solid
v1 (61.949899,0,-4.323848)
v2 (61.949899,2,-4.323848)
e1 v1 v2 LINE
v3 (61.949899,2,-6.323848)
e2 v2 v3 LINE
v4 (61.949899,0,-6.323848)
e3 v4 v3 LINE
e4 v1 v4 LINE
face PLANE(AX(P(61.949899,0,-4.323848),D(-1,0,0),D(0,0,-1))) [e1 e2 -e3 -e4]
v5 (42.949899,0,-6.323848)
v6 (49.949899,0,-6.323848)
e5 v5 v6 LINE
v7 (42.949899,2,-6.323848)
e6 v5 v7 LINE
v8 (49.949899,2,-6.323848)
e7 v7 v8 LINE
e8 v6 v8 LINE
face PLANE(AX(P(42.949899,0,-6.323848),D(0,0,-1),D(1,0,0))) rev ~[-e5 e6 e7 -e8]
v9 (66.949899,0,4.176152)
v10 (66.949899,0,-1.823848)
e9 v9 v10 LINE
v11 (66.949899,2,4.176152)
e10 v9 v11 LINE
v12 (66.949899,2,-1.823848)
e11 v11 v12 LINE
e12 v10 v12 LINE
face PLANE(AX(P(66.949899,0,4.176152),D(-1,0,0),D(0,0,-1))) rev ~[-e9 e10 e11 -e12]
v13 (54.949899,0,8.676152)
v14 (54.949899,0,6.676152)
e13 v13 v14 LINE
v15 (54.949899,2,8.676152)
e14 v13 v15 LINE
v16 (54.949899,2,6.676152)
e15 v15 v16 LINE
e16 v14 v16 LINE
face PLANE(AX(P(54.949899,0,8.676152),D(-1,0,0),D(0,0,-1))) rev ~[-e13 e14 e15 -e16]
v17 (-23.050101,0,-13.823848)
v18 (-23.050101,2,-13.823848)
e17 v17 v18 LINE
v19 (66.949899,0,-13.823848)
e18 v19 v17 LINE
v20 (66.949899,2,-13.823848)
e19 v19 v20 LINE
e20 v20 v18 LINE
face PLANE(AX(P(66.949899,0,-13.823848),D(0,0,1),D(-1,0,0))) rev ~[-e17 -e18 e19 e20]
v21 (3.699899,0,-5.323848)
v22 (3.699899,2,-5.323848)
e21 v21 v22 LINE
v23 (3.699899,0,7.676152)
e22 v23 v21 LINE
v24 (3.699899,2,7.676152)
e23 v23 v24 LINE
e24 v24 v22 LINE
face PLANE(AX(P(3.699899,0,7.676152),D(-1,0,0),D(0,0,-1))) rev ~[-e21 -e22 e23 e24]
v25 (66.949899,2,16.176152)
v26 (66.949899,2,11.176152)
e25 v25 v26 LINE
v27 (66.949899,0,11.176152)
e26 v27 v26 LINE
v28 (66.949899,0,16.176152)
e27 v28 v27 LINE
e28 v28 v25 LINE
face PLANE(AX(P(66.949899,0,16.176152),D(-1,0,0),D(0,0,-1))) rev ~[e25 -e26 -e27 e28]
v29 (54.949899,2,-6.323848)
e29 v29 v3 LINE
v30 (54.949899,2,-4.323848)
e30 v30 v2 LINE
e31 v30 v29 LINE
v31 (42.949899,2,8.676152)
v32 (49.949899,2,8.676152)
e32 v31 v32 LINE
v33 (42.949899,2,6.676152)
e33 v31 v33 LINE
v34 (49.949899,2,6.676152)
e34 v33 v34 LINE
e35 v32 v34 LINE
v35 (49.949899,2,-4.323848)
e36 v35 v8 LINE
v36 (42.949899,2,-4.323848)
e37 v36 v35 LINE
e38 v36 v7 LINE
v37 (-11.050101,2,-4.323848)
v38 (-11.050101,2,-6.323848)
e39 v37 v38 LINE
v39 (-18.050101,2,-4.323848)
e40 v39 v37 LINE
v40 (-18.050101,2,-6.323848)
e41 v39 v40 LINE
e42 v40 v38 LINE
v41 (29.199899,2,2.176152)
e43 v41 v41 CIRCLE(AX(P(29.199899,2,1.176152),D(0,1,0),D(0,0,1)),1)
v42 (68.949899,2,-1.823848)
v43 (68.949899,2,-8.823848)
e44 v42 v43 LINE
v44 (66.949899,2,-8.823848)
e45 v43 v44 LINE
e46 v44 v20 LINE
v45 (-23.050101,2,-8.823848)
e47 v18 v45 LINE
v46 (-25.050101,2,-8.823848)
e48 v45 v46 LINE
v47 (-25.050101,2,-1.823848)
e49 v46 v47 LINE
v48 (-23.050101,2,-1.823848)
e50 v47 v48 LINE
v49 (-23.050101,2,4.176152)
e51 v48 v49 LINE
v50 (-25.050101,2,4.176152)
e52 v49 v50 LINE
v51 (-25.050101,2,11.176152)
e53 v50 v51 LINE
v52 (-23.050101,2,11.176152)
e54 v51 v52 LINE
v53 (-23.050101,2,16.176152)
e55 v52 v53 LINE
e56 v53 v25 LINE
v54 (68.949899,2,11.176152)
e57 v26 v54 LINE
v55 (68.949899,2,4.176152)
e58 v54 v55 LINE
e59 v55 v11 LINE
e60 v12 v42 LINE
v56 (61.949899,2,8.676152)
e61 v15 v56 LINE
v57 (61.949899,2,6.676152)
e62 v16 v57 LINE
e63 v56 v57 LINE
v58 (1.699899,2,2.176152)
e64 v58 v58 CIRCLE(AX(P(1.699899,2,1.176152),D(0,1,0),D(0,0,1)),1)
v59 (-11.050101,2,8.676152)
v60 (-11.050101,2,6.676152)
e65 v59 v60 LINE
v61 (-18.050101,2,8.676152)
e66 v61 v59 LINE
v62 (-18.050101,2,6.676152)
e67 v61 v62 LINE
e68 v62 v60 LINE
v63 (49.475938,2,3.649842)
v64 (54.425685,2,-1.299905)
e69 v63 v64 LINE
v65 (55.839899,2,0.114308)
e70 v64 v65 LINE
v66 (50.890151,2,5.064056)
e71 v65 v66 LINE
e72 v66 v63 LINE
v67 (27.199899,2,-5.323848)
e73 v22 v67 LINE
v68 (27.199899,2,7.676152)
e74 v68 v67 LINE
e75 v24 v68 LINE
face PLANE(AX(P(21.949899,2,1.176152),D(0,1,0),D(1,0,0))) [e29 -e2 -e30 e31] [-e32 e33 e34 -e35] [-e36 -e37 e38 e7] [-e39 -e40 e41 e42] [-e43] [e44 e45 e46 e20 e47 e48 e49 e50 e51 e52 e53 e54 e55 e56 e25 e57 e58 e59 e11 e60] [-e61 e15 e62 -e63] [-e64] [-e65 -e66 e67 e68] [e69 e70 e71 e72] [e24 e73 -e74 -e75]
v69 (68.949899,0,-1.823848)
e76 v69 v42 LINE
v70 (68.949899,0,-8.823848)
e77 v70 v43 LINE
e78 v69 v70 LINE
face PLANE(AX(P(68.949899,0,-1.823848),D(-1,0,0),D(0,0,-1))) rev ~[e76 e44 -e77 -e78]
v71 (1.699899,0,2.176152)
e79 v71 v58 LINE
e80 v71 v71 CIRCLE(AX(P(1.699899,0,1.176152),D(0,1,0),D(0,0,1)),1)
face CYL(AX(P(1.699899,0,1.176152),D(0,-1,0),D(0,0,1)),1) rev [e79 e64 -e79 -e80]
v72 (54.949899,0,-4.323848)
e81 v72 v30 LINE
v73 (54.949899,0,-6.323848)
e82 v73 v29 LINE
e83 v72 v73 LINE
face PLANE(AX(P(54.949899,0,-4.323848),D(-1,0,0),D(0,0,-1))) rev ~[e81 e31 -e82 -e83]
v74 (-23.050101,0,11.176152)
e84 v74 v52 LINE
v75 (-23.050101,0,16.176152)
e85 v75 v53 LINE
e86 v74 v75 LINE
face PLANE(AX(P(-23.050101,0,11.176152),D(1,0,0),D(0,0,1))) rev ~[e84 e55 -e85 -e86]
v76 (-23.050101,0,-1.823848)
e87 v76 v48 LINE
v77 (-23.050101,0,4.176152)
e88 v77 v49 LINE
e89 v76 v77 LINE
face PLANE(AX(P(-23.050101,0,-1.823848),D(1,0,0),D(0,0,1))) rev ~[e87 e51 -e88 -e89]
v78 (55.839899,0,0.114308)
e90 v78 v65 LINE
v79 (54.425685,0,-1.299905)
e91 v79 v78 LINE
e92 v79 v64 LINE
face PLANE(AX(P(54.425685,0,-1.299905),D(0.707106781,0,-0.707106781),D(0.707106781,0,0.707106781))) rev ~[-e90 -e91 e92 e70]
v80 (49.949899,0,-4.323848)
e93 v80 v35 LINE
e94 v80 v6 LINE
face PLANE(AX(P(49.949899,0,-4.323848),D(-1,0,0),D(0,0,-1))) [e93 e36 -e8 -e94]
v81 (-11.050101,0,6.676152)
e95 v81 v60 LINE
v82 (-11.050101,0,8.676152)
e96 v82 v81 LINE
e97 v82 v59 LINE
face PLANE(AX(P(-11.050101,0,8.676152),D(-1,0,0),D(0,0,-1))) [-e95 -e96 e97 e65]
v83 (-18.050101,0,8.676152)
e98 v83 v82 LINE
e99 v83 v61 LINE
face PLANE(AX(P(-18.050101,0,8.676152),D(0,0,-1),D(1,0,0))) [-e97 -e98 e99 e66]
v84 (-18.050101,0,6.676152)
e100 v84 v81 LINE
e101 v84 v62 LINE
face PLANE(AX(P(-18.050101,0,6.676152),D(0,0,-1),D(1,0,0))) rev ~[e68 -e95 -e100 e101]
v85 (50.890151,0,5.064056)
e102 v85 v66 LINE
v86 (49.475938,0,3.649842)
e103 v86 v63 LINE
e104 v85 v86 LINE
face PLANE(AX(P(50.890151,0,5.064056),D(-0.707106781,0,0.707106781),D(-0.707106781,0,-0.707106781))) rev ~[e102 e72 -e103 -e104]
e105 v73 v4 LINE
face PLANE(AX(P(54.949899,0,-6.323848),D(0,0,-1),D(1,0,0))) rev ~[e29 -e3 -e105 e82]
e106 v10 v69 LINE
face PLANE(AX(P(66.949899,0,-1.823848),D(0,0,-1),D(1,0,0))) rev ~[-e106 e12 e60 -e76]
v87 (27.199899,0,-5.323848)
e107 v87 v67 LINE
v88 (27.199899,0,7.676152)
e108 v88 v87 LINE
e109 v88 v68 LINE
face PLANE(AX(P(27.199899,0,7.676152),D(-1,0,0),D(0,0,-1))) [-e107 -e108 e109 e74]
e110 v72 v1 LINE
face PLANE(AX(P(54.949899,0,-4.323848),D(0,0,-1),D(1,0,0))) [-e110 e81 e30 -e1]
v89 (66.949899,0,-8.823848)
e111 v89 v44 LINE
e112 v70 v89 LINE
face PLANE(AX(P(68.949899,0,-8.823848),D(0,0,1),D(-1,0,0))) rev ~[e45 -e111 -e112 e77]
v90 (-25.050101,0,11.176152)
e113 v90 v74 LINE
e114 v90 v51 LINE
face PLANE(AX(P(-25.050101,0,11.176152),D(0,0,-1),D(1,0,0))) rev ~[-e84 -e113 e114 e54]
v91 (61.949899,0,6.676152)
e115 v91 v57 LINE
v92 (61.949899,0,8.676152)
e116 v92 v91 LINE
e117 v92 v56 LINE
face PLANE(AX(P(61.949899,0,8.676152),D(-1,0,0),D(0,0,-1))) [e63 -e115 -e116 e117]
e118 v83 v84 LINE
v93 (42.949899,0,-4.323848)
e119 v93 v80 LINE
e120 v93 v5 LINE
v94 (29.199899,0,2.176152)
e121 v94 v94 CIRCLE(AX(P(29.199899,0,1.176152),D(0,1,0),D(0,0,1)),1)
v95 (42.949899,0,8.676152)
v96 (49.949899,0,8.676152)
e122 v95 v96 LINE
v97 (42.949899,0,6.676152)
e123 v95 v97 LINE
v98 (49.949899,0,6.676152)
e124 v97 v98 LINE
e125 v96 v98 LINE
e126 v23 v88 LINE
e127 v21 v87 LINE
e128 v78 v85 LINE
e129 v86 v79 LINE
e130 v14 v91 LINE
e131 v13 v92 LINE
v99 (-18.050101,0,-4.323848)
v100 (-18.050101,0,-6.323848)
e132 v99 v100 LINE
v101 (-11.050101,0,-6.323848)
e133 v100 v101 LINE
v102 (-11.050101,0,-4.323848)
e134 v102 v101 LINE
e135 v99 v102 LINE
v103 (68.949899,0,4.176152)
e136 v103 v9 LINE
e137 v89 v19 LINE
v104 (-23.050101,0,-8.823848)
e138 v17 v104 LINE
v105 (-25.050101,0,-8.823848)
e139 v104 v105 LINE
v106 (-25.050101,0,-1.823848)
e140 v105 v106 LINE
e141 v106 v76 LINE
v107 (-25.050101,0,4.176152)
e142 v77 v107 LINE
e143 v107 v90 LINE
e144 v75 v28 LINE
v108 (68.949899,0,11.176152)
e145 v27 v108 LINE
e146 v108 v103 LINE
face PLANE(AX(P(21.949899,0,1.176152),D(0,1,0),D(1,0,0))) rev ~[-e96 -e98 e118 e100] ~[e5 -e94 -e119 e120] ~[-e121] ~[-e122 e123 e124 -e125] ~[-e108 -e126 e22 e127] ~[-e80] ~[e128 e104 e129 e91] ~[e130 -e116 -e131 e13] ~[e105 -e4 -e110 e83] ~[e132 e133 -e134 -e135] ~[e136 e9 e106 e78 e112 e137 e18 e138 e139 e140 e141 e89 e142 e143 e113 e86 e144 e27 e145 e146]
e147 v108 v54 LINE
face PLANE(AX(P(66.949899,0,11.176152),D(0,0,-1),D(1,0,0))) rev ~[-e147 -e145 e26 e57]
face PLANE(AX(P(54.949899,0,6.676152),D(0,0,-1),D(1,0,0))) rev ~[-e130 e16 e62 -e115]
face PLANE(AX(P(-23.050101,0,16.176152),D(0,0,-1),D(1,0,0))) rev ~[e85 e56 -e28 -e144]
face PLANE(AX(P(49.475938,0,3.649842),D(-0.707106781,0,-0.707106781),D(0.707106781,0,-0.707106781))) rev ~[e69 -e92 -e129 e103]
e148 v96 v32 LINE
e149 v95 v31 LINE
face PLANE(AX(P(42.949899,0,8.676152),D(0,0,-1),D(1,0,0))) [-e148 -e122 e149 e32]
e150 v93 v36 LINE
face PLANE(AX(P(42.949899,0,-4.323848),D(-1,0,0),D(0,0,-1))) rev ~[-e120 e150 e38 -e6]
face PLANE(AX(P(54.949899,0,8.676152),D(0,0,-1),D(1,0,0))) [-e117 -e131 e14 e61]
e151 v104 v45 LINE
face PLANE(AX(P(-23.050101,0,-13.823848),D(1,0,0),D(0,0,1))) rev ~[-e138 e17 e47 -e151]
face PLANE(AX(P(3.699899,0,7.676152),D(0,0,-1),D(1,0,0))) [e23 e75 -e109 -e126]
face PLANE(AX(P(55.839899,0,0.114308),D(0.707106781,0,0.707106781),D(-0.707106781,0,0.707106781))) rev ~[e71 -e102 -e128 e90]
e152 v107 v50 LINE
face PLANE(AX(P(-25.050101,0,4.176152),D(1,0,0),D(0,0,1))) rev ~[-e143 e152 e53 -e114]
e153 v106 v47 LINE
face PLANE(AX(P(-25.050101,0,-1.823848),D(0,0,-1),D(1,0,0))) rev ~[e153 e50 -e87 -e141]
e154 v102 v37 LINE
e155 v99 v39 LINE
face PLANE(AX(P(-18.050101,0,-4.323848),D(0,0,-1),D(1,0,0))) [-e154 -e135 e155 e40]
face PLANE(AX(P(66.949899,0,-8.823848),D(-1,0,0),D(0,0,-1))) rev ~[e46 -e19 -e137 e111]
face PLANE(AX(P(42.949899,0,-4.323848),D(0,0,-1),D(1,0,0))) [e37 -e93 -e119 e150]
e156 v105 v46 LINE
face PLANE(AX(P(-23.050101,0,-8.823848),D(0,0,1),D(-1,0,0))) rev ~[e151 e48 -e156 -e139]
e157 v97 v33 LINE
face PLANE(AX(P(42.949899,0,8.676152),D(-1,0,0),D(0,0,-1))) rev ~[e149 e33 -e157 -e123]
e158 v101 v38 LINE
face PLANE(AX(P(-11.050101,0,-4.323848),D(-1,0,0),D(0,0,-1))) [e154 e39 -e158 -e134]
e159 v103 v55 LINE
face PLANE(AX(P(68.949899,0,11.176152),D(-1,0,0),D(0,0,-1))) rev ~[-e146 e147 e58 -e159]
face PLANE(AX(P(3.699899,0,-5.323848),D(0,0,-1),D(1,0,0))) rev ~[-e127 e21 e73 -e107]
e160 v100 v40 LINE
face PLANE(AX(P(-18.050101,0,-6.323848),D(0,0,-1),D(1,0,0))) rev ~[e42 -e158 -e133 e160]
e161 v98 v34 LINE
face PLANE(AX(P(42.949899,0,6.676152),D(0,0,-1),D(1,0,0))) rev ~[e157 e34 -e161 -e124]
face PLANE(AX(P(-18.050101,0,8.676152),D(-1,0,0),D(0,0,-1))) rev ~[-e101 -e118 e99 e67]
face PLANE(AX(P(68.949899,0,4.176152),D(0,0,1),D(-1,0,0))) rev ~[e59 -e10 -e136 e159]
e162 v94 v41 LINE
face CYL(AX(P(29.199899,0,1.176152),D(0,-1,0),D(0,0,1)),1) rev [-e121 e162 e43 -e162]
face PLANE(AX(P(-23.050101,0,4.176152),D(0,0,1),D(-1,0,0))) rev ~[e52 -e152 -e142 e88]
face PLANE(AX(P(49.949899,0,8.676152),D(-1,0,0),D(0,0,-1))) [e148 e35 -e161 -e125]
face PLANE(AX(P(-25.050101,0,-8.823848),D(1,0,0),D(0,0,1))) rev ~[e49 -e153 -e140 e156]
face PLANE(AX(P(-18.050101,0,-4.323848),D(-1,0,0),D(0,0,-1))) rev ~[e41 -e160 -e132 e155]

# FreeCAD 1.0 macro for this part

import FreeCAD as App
import Part
import Sketcher

V = App.Vector
Q = App.Units.Quantity


def add_polygon(sketch, points):
    """Adds a closed chain of lines whose ends are joined by coincident constraints."""
    first, n = sketch.GeometryCount, len(points)
    for a, b in zip(points, points[1:] + points[:1]):
        sketch.addGeometry(Part.LineSegment(App.Vector(*a, 0), App.Vector(*b, 0)), False)
    for i in range(n):
        sketch.addConstraint(Sketcher.Constraint("Coincident", first + i, 2, first + (i + 1) % n, 1))

doc = App.newDocument("Part")
body = doc.addObject("PartDesign::Body", "Body")

sketch1 = body.newObject("Sketcher::SketchObject", "Sketch")
sketch1.AttachmentSupport = (doc.getObject("XZ_Plane"), [""])
sketch1.MapMode = "FlatFace"
add_polygon(sketch1, [(66.9, -13.8), (-23.1, -13.8), (-23.1, -8.8), (-25.1, -8.8), (-25.1, -1.8), (-23.1, -1.8), (-23.1, 4.2), (-25.1, 4.2), (-25.1, 11.2), (-23.1, 11.2), (-23.1, 16.2), (66.9, 16.2), (66.9, 11.2), (68.9, 11.2), (68.9, 4.2), (66.9, 4.2), (66.9, -1.8), (68.9, -1.8), (68.9, -8.8), (66.9, -8.8)])
add_polygon(sketch1, [(-11.1, 8.7), (-18.1, 8.7), (-18.1, 6.7), (-11.1, 6.7)])
add_polygon(sketch1, [(49.9, 8.7), (42.9, 8.7), (42.9, 6.7), (49.9, 6.7)])
add_polygon(sketch1, [(61.9, 8.7), (54.9, 8.7), (54.9, 6.7), (61.9, 6.7)])
add_polygon(sketch1, [(54.4, -1.3), (55.8, 0.1), (50.9, 5.1), (49.5, 3.6)])
sketch1.addGeometry(Part.Circle(V(1.7, 1.2, 0), V(0, 0, 1), 1), False)
add_polygon(sketch1, [(27.2, 7.7), (3.7, 7.7), (3.7, -5.3), (27.2, -5.3)])
add_polygon(sketch1, [(-11.1, -4.3), (-18.1, -4.3), (-18.1, -6.3), (-11.1, -6.3)])
sketch1.addGeometry(Part.Circle(V(29.2, 1.2, 0), V(0, 0, 1), 1), False)
add_polygon(sketch1, [(49.9, -4.3), (42.9, -4.3), (42.9, -6.3), (49.9, -6.3)])
add_polygon(sketch1, [(61.9, -4.3), (54.9, -4.3), (54.9, -6.3), (61.9, -6.3)])
sketch1.addConstraint([
    Sketcher.Constraint("Horizontal", 0),
    Sketcher.Constraint("Vertical", 1),
    Sketcher.Constraint("Horizontal", 2),
    Sketcher.Constraint("Vertical", 3),
    Sketcher.Constraint("Horizontal", 4),
    Sketcher.Constraint("Vertical", 5),
    Sketcher.Constraint("Horizontal", 6),
    Sketcher.Constraint("Vertical", 7),
    Sketcher.Constraint("Horizontal", 8),
    Sketcher.Constraint("Vertical", 9),
    Sketcher.Constraint("Horizontal", 10),
    Sketcher.Constraint("Vertical", 11),
    Sketcher.Constraint("Horizontal", 12),
    Sketcher.Constraint("Vertical", 13),
    Sketcher.Constraint("Horizontal", 14),
    Sketcher.Constraint("Vertical", 15),
    Sketcher.Constraint("Horizontal", 16),
    Sketcher.Constraint("Vertical", 17),
    Sketcher.Constraint("Horizontal", 18),
    Sketcher.Constraint("Vertical", 19),
    Sketcher.Constraint("Horizontal", 20),
    Sketcher.Constraint("Vertical", 21),
    Sketcher.Constraint("Horizontal", 22),
    Sketcher.Constraint("Vertical", 23),
    Sketcher.Constraint("Horizontal", 24),
    Sketcher.Constraint("Vertical", 25),
    Sketcher.Constraint("Horizontal", 26),
    Sketcher.Constraint("Vertical", 27),
    Sketcher.Constraint("Horizontal", 28),
    Sketcher.Constraint("Vertical", 29),
    Sketcher.Constraint("Horizontal", 30),
    Sketcher.Constraint("Vertical", 31),
    Sketcher.Constraint("Horizontal", 37),
    Sketcher.Constraint("Vertical", 38),
    Sketcher.Constraint("Horizontal", 39),
    Sketcher.Constraint("Vertical", 40),
    Sketcher.Constraint("Horizontal", 41),
    Sketcher.Constraint("Vertical", 42),
    Sketcher.Constraint("Horizontal", 43),
    Sketcher.Constraint("Vertical", 44),
    Sketcher.Constraint("Horizontal", 46),
    Sketcher.Constraint("Vertical", 47),
    Sketcher.Constraint("Horizontal", 48),
    Sketcher.Constraint("Vertical", 49),
    Sketcher.Constraint("Horizontal", 50),
    Sketcher.Constraint("Vertical", 51),
    Sketcher.Constraint("Horizontal", 52),
    Sketcher.Constraint("Vertical", 53),
    Sketcher.Constraint("Equal", 36, 45),
    Sketcher.Constraint("Perpendicular", 32, 33),
    Sketcher.Constraint("Perpendicular", 33, 34),
    Sketcher.Constraint("Perpendicular", 34, 35),
    Sketcher.Constraint("Horizontal", 36, 3, 45, 3),
    Sketcher.Constraint("Horizontal", 8, 2, 11, 2),
    Sketcher.Constraint("Horizontal", 6, 2, 13, 2),
    Sketcher.Constraint("Horizontal", 4, 2, 15, 2),
    Sketcher.Constraint("Horizontal", 2, 2, 17, 2),
    Sketcher.Constraint("Horizontal", 23, 2, 24, 2),
    Sketcher.Constraint("Horizontal", 22, 2, 25, 2),
    Sketcher.Constraint("Horizontal", 27, 2, 28, 2),
    Sketcher.Constraint("Horizontal", 26, 2, 29, 2),
    Sketcher.Constraint("Horizontal", 44, 2, 46, 2),
    Sketcher.Constraint("Horizontal", 43, 2, 47, 2),
    Sketcher.Constraint("Horizontal", 49, 2, 50, 2),
    Sketcher.Constraint("Horizontal", 48, 2, 51, 2),
    Sketcher.Constraint("Vertical", 1, 2, 4, 2),
    Sketcher.Constraint("Vertical", 3, 2, 6, 2),
    Sketcher.Constraint("Vertical", 5, 2, 8, 2),
    Sketcher.Constraint("Vertical", 11, 2, 14, 2),
    Sketcher.Constraint("Vertical", 13, 2, 16, 2),
    Sketcher.Constraint("Vertical", 15, 2, 18, 2),
    Sketcher.Constraint("Vertical", 21, 2, 41, 2),
    Sketcher.Constraint("Vertical", 23, 2, 43, 2),
    Sketcher.Constraint("Vertical", 25, 2, 46, 2),
    Sketcher.Constraint("Vertical", 27, 2, 48, 2),
    Sketcher.Constraint("Vertical", 29, 2, 50, 2),
    Sketcher.Constraint("Vertical", 31, 2, 52, 2),
    Sketcher.Constraint("Equal", 8, 12),
    Sketcher.Constraint("Equal", 22, 24),
    Sketcher.Constraint("Equal", 26, 28),
    Sketcher.Constraint("Equal", 52, 3),
    Sketcher.Constraint("Equal", 3, 7),
    Sketcher.Constraint("Equal", 1, 9),
    Sketcher.Constraint("Equal", 18, 21),
    Sketcher.Constraint("Equal", 31, 42),
    Sketcher.Constraint("Diameter", 36, Q("2 mm")),
    Sketcher.Constraint("DistanceX", 0, 2, 0, 1, Q("90 mm")),
    Sketcher.Constraint("DistanceX", 2, 2, 2, 1, Q("2 mm")),
    Sketcher.Constraint("DistanceX", 20, 2, 20, 1, Q("7 mm")),
    Sketcher.Constraint("DistanceY", 1, 1, 1, 2, Q("5 mm")),
    Sketcher.Constraint("DistanceY", 5, 1, 5, 2, Q("6 mm")),
    Sketcher.Constraint("DistanceY", 38, 2, 38, 1, Q("13 mm")),
    Sketcher.Constraint("Angle", 32, Q("45 deg")),
    Sketcher.Constraint("Distance", 32, Q("2 mm")),
    Sketcher.Constraint("Distance", 33, Q("7 mm")),
    Sketcher.Constraint("DistanceX", 37, 2, 37, 1, Q("23.5 mm")),
    Sketcher.Constraint("DistanceY", 0, 2, 36, 3, Q("15 mm")),
    Sketcher.Constraint("DistanceX", 8, 2, 20, 2, Q("5 mm")),
    Sketcher.Constraint("DistanceX", 24, 2, 11, 2, Q("24 mm")),
    Sketcher.Constraint("DistanceX", 27, 2, 28, 2, Q("5 mm")),
    Sketcher.Constraint("DistanceX", 36, 3, 37, 2, Q("2 mm")),
    Sketcher.Constraint("DistanceY", 22, 2, 37, 2, Q("1 mm")),
    Sketcher.Constraint("DistanceX", 39, 2, 45, 3, Q("2 mm")),
    Sketcher.Constraint("DistanceY", 43, 2, 22, 2, Q("13 mm")),
    Sketcher.Constraint("DistanceY", 20, 2, 8, 2, Q("2.5 mm")),
    Sketcher.Constraint("DistanceX", 0, 2, 36, 3, Q("24.75 mm")),
    Sketcher.Constraint("DistanceX", 29, 2, 32, 2, Q("0.89 mm")),
    Sketcher.Constraint("DistanceX", -1, 1, 36, 3, Q("1.699899 mm")),
    Sketcher.Constraint("DistanceY", -1, 1, 36, 3, Q("1.176152 mm")),
    Sketcher.Constraint("DistanceY", -1, 1, 32, 2, Q("0.114308 mm")),
])
pad1 = body.newObject("PartDesign::Pad", "Pad")
pad1.Profile = sketch1
pad1.Length = 2
pad1.Reversed = True

doc.recompute()
